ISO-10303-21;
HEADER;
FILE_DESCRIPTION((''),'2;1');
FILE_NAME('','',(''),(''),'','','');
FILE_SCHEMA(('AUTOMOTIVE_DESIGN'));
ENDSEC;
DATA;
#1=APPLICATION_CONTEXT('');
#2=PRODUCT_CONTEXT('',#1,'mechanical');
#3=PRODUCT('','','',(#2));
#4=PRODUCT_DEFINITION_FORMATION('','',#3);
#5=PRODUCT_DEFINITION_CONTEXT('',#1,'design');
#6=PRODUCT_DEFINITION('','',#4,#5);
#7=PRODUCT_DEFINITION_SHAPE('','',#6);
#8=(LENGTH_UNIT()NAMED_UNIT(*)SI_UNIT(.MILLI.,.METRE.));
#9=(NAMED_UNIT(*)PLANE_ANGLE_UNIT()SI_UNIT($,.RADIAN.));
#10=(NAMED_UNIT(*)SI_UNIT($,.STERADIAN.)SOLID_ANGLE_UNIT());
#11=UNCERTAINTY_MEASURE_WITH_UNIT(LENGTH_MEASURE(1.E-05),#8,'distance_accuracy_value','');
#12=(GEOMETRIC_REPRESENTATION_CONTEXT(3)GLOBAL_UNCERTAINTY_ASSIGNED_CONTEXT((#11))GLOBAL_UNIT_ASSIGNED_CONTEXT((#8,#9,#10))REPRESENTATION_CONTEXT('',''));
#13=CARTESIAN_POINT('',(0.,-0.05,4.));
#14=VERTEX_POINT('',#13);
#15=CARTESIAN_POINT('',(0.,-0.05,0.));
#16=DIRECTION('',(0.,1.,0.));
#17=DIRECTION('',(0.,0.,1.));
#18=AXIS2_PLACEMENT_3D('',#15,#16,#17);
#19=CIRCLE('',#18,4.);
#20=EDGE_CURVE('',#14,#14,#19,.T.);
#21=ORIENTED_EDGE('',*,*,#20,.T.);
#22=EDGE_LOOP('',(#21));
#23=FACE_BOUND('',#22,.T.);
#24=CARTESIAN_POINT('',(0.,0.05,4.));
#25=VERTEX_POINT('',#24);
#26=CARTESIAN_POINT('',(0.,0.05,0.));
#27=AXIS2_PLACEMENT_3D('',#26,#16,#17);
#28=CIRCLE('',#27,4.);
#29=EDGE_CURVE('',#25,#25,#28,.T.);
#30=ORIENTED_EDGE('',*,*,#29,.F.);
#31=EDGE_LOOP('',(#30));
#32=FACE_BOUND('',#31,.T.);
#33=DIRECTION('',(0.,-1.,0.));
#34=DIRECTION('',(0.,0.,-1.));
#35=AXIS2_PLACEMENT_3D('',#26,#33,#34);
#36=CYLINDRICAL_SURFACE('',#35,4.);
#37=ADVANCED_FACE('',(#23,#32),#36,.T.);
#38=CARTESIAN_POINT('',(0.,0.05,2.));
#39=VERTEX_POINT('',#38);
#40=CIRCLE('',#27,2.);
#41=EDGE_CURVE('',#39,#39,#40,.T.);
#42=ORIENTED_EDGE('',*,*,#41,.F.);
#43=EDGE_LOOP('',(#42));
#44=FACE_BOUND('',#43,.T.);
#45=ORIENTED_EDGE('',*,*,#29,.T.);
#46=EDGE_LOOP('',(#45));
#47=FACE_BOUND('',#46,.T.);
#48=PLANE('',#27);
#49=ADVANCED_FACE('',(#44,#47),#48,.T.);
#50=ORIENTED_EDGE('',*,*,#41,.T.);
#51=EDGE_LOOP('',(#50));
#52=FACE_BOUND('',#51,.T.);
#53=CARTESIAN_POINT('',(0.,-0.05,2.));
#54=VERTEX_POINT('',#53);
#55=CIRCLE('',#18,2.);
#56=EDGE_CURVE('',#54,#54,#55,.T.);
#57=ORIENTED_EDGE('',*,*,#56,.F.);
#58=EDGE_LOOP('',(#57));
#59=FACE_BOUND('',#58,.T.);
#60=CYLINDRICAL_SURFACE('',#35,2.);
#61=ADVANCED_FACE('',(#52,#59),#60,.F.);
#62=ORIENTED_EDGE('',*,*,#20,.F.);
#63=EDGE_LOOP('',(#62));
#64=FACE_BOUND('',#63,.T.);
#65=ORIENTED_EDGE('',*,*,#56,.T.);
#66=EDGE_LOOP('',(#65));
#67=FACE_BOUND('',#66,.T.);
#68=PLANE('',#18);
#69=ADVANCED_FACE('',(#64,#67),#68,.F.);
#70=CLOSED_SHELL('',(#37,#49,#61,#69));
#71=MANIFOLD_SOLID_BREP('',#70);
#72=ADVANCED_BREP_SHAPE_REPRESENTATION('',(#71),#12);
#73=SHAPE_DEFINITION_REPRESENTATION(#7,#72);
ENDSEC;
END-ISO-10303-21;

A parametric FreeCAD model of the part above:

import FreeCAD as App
import Part
import Sketcher

V = App.Vector

doc = App.newDocument("Part")
body = doc.addObject("PartDesign::Body", "Body")

sketch1 = body.newObject("Sketcher::SketchObject", "Sketch")
sketch1.AttachmentSupport = (doc.getObject("XZ_Plane"), [""])
sketch1.MapMode = "FlatFace"
sketch1.addGeometry(Part.Circle(V(0, 0, 0), V(0, 0, 1), 4), False)
sketch1.addGeometry(Part.Circle(V(0, 0, 0), V(0, 0, 1), 2), False)
sketch1.addConstraint(Sketcher.Constraint("Coincident", 0, 3, -1, 1))
sketch1.addConstraint(Sketcher.Constraint("Coincident", 1, 3, -1, 1))
sketch1.addConstraint(Sketcher.Constraint("Diameter", 0, 8.0))
sketch1.addConstraint(Sketcher.Constraint("Diameter", 1, 4.0))
pad1 = body.newObject("PartDesign::Pad", "Pad")
pad1.Profile = sketch1
pad1.Type = "TwoLengths"
pad1.Length = 0.05
pad1.Length2 = 0.05
pad1.Reversed = True

doc.recompute()
